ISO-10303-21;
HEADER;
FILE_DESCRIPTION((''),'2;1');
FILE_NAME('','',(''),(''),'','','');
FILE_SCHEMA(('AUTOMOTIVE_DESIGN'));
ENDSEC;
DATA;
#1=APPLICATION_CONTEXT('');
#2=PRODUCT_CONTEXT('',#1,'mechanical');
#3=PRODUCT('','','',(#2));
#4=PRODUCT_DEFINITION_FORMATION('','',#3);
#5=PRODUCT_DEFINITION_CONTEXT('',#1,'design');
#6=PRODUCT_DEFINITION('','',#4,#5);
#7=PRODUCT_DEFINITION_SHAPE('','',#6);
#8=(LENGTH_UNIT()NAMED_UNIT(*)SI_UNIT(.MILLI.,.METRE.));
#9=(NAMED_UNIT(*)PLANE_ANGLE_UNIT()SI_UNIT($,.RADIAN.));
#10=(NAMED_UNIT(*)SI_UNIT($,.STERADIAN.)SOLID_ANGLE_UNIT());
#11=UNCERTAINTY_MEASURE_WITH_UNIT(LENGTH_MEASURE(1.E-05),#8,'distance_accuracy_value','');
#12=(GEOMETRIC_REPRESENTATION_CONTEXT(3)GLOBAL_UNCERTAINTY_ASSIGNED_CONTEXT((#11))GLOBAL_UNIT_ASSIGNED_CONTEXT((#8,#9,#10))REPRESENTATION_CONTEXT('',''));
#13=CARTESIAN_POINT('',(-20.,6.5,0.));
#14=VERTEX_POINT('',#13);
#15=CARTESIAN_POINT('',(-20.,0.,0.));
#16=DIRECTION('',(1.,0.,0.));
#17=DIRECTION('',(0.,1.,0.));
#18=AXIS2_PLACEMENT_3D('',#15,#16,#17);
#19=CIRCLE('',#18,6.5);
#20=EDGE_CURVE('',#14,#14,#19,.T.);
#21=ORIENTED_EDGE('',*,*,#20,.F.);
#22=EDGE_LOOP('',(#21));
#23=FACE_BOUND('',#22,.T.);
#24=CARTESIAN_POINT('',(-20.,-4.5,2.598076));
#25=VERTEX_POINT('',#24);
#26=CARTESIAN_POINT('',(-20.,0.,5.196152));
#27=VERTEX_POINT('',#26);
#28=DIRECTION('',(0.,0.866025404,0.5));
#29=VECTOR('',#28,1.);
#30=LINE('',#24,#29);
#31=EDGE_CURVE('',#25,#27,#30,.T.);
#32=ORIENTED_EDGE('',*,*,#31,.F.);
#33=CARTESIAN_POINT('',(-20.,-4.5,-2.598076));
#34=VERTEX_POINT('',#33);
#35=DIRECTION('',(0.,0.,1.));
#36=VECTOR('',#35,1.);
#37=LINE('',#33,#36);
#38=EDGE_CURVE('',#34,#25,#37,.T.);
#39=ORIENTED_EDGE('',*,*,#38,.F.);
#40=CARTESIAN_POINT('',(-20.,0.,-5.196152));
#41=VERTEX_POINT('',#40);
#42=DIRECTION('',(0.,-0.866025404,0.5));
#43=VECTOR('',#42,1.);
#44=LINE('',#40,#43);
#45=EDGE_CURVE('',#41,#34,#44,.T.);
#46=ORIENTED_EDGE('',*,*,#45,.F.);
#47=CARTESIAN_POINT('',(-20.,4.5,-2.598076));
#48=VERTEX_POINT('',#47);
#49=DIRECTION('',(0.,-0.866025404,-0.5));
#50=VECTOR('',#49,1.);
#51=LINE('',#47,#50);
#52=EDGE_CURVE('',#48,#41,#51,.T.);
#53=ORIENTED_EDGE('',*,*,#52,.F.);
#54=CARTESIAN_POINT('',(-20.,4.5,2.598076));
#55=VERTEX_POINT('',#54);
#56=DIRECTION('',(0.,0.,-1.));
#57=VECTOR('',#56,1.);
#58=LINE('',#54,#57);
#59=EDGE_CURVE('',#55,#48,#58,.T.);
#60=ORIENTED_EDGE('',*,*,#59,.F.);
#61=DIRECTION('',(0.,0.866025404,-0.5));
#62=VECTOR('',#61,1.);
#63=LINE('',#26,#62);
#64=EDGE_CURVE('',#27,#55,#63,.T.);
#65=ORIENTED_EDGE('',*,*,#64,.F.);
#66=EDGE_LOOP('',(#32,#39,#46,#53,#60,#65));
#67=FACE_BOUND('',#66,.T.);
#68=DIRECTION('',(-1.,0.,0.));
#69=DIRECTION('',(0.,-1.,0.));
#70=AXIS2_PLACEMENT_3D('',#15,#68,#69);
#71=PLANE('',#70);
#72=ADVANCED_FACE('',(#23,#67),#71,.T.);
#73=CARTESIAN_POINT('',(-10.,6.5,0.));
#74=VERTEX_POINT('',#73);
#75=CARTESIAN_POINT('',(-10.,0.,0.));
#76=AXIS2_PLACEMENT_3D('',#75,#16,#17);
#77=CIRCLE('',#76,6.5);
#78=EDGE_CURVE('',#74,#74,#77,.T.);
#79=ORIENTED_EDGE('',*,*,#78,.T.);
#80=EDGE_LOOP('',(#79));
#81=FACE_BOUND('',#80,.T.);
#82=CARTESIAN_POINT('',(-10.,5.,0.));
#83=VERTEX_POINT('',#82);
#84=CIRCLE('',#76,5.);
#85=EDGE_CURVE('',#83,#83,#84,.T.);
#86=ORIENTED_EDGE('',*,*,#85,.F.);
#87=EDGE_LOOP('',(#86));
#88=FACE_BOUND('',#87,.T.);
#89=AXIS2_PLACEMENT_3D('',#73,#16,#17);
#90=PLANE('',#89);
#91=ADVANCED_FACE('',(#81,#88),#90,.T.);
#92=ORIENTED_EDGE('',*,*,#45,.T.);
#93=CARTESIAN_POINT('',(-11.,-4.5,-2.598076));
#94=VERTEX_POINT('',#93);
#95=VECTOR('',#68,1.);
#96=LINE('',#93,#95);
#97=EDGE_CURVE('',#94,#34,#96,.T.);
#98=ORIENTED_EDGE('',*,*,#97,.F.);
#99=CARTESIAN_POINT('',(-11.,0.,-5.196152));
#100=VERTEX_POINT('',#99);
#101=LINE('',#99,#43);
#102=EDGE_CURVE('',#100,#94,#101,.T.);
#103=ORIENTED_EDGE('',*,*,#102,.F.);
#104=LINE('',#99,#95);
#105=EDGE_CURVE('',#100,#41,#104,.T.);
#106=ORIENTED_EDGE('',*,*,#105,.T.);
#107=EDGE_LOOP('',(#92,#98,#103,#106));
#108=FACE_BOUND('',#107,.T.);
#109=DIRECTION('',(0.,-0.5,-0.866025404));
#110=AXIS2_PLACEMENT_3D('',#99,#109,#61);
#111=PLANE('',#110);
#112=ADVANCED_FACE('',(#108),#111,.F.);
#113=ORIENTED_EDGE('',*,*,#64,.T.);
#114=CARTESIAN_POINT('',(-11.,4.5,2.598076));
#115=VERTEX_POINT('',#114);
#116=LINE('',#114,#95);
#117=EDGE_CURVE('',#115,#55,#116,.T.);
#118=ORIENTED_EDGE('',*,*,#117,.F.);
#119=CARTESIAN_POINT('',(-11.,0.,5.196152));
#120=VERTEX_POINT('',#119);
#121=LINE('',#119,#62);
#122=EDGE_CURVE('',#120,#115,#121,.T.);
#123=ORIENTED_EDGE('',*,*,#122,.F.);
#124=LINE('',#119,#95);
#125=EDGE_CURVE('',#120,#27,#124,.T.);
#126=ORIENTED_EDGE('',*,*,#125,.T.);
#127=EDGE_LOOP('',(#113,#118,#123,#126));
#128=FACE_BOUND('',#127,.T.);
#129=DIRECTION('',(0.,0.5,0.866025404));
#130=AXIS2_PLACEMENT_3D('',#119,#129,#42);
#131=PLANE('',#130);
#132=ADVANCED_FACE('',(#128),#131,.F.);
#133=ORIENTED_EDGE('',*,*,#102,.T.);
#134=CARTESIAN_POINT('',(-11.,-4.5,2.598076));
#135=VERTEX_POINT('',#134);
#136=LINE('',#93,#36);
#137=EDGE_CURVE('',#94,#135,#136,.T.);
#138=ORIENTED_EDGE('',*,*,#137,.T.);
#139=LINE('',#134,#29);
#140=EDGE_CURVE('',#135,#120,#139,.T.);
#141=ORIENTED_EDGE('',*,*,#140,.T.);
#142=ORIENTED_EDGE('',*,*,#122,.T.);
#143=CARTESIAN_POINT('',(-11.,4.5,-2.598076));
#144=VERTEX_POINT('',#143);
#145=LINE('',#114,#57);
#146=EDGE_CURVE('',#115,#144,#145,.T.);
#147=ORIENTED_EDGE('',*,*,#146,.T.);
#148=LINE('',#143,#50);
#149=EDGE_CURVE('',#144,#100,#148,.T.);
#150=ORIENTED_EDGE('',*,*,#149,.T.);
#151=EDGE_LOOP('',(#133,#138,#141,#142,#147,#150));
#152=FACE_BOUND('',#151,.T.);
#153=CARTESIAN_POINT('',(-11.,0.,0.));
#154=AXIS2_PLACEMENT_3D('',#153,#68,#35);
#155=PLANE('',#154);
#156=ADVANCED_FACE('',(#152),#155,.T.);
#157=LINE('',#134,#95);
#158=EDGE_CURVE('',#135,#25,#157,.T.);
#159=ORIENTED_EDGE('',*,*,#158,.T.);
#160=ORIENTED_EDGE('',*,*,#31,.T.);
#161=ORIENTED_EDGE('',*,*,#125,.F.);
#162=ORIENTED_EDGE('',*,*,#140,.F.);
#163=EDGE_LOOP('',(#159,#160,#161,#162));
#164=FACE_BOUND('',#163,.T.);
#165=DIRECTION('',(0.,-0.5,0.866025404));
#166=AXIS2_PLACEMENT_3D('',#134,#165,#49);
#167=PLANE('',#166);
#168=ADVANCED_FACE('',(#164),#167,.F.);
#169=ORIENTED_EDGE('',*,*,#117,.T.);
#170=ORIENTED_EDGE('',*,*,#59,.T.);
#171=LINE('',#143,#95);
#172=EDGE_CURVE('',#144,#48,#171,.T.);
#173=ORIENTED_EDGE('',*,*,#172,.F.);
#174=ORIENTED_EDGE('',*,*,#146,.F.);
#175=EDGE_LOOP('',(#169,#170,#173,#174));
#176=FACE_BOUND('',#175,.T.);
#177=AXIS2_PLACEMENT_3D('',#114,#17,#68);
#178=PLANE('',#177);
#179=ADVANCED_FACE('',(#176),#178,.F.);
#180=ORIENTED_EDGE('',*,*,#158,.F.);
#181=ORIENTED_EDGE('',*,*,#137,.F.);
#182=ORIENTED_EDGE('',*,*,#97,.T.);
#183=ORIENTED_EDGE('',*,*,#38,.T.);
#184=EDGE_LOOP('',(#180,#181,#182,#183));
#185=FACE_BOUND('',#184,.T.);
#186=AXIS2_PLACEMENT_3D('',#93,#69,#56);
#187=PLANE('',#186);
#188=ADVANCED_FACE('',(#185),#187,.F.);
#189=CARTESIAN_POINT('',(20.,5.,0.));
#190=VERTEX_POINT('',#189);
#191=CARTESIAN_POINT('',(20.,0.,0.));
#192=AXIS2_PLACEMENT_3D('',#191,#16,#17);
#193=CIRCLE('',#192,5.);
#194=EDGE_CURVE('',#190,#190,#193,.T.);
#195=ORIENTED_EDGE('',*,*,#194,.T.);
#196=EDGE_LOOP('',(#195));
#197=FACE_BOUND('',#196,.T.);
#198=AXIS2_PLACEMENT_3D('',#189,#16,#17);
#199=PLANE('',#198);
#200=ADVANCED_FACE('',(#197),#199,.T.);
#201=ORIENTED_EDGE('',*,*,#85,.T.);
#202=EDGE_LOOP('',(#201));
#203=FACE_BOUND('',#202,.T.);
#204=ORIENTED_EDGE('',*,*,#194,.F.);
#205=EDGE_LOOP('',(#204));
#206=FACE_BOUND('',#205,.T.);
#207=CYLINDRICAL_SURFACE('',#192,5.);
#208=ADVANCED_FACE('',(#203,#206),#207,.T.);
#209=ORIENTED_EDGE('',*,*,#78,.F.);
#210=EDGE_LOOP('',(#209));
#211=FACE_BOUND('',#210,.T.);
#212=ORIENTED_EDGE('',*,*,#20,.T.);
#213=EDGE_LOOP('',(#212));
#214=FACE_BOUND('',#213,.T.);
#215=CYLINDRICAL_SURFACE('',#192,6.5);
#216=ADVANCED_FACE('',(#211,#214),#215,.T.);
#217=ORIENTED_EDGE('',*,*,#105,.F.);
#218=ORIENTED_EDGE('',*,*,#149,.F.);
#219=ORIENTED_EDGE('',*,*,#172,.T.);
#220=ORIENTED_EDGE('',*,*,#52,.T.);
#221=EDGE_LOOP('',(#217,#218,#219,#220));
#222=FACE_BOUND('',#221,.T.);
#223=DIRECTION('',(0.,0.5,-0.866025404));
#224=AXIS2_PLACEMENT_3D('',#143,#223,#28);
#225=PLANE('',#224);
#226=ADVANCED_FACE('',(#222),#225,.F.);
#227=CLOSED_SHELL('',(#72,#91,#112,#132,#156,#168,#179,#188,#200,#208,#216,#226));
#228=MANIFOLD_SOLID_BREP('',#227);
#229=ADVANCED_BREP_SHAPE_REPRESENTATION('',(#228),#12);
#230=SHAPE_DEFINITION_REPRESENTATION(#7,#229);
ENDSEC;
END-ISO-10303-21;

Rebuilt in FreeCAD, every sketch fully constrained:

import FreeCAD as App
import Part
import Sketcher
Q = App.Units.Quantity

doc = App.newDocument("Part")
body = doc.addObject("PartDesign::Body", "Body")

sketch1 = doc.addObject("Sketcher::SketchObject", "Sketch")
body.addObject(sketch1)
sketch1.AttachmentSupport = (doc.XY_Plane, [""])
sketch1.MapMode = "FlatFace"
sketch1.addGeometry([
    Part.LineSegment(App.Vector(-20, 6.5, 0), App.Vector(-20, 0, 0)),
    Part.LineSegment(App.Vector(-20, 0, 0), App.Vector(20, 0, 0)),
    Part.LineSegment(App.Vector(20, 0, 0), App.Vector(20, 5, 0)),
    Part.LineSegment(App.Vector(20, 5, 0), App.Vector(-10, 5, 0)),
    Part.LineSegment(App.Vector(-10, 5, 0), App.Vector(-10, 6.5, 0)),
    Part.LineSegment(App.Vector(-10, 6.5, 0), App.Vector(-20, 6.5, 0)),
], False)
sketch1.addConstraint([
    Sketcher.Constraint("Coincident", 0, 2, 1, 1),
    Sketcher.Constraint("Coincident", 1, 2, 2, 1),
    Sketcher.Constraint("Coincident", 2, 2, 3, 1),
    Sketcher.Constraint("Coincident", 3, 2, 4, 1),
    Sketcher.Constraint("Coincident", 4, 2, 5, 1),
    Sketcher.Constraint("Coincident", 5, 2, 0, 1),
    Sketcher.Constraint("Vertical", 0),
    Sketcher.Constraint("Horizontal", 1),
    Sketcher.Constraint("Vertical", 2),
    Sketcher.Constraint("Horizontal", 3),
    Sketcher.Constraint("Vertical", 4),
    Sketcher.Constraint("Horizontal", 5),
    Sketcher.Constraint("Symmetric", 0, 2, 1, 2, -1, 1),
    Sketcher.Constraint("DistanceX", 1, 1, 1, 2, Q("40 mm")),
    Sketcher.Constraint("DistanceX", 3, 2, 3, 1, Q("30 mm")),
    Sketcher.Constraint("DistanceY", 2, 1, 2, 2, Q("5 mm")),
    Sketcher.Constraint("DistanceY", 0, 2, 0, 1, Q("6.5 mm")),
])
revolution = doc.addObject("PartDesign::Revolution", "Revolution")
body.addObject(revolution)
revolution.Profile = sketch1
revolution.ReferenceAxis = (sketch1, ["H_Axis"])
revolution.Angle = 360

sketch2 = doc.addObject("Sketcher::SketchObject", "Sketch001")
body.addObject(sketch2)
sketch2.AttachmentSupport = (doc.YZ_Plane, [""])
sketch2.MapMode = "FlatFace"
sketch2.AttachmentOffset = App.Placement(App.Vector(0, 0, -20), App.Rotation())
sketch2.addGeometry([
    Part.LineSegment(App.Vector(0, 5, 0), App.Vector(4, 3, 0)),
    Part.LineSegment(App.Vector(4, 3, 0), App.Vector(4, -3, 0)),
    Part.LineSegment(App.Vector(4, -3, 0), App.Vector(0, -5, 0)),
    Part.LineSegment(App.Vector(0, -5, 0), App.Vector(-4, -3, 0)),
    Part.LineSegment(App.Vector(-4, -3, 0), App.Vector(-4, 3, 0)),
    Part.LineSegment(App.Vector(-4, 3, 0), App.Vector(0, 5, 0)),
], False)
sketch2.addConstraint([
    Sketcher.Constraint("Coincident", 0, 2, 1, 1),
    Sketcher.Constraint("Coincident", 1, 2, 2, 1),
    Sketcher.Constraint("Coincident", 2, 2, 3, 1),
    Sketcher.Constraint("Coincident", 3, 2, 4, 1),
    Sketcher.Constraint("Coincident", 4, 2, 5, 1),
    Sketcher.Constraint("Coincident", 5, 2, 0, 1),
    Sketcher.Constraint("Vertical", 1),
    Sketcher.Constraint("Vertical", 4),
    Sketcher.Constraint("Symmetric", 0, 2, 3, 2, -1, 1),
    Sketcher.Constraint("Symmetric", 2, 2, 5, 2, -1, 1),
    Sketcher.Constraint("PointOnObject", 2, 2, -2),
    Sketcher.Constraint("Parallel", 2, 5),
    Sketcher.Constraint("Horizontal", 1, 2, 3, 2),
    Sketcher.Constraint("Angle", 0, Q("-30 deg")),
    Sketcher.Constraint("DistanceX", 3, 2, 1, 2, Q("9 mm")),
    Sketcher.Constraint("DistanceY", 1, 2, 1, 1, Q("5.196152 mm")),
])
pocket1 = doc.addObject("PartDesign::Pocket", "Pocket")
body.addObject(pocket1)
pocket1.Profile = sketch2
pocket1.Length = 9
pocket1.Reversed = True

doc.recompute()
